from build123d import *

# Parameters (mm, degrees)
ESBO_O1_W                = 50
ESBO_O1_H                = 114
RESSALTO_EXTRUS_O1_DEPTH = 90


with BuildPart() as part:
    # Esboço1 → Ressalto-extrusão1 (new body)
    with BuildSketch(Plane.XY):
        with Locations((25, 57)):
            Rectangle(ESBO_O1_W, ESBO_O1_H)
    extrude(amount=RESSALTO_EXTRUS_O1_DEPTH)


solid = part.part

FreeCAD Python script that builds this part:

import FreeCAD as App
import Part
import Sketcher

V = App.Vector

doc = App.newDocument("Part")
params = doc.addObject("Spreadsheet::Sheet", "Params")
for row, (alias, value) in enumerate([
    ("sketch1_width", "50 mm"),
    ("sketch1_height", "114 mm"),
    ("pad1_length", "90 mm"),
], start=1):
    params.set(f"A{row}", alias)
    params.set(f"B{row}", "=" + value)
    params.setAlias(f"B{row}", alias)

body = doc.addObject("PartDesign::Body", "Body")

# Sketch on XY plane
sketch1 = doc.addObject("Sketcher::SketchObject", "Sketch")
body.addObject(sketch1)
sketch1.AttachmentSupport = (doc.XY_Plane, [""])
sketch1.MapMode = "FlatFace"
sketch1.addGeometry(Part.LineSegment(V(0, 114, 0), V(0, 0, 0)), False)
sketch1.addGeometry(Part.LineSegment(V(0, 0, 0), V(50, 0, 0)), False)
sketch1.addGeometry(Part.LineSegment(V(50, 0, 0), V(50, 114, 0)), False)
sketch1.addGeometry(Part.LineSegment(V(50, 114, 0), V(0, 114, 0)), False)
sketch1.addConstraint(Sketcher.Constraint("Coincident", 0, 2, 1, 1))
sketch1.addConstraint(Sketcher.Constraint("Coincident", 1, 2, 2, 1))
sketch1.addConstraint(Sketcher.Constraint("Coincident", 2, 2, 3, 1))
sketch1.addConstraint(Sketcher.Constraint("Coincident", 3, 2, 0, 1))
sketch1.addConstraint(Sketcher.Constraint("Vertical", 0))
sketch1.addConstraint(Sketcher.Constraint("Horizontal", 1))
sketch1.addConstraint(Sketcher.Constraint("Vertical", 2))
sketch1.addConstraint(Sketcher.Constraint("Horizontal", 3))
sketch1.addConstraint(Sketcher.Constraint("Coincident", 0, 2, -1, 1))
sketch1.addConstraint(Sketcher.Constraint("DistanceX", 1, 1, 1, 2, 50.0))
sketch1.addConstraint(Sketcher.Constraint("DistanceY", 0, 2, 0, 1, 114.0))
sketch1.setExpression("Constraints[9]", "Params.sketch1_width")
sketch1.setExpression("Constraints[10]", "Params.sketch1_height")
pad1 = doc.addObject("PartDesign::Pad", "Pad")
body.addObject(pad1)
pad1.Profile = sketch1
pad1.setExpression("Length", "Params.pad1_length")

doc.recompute()
